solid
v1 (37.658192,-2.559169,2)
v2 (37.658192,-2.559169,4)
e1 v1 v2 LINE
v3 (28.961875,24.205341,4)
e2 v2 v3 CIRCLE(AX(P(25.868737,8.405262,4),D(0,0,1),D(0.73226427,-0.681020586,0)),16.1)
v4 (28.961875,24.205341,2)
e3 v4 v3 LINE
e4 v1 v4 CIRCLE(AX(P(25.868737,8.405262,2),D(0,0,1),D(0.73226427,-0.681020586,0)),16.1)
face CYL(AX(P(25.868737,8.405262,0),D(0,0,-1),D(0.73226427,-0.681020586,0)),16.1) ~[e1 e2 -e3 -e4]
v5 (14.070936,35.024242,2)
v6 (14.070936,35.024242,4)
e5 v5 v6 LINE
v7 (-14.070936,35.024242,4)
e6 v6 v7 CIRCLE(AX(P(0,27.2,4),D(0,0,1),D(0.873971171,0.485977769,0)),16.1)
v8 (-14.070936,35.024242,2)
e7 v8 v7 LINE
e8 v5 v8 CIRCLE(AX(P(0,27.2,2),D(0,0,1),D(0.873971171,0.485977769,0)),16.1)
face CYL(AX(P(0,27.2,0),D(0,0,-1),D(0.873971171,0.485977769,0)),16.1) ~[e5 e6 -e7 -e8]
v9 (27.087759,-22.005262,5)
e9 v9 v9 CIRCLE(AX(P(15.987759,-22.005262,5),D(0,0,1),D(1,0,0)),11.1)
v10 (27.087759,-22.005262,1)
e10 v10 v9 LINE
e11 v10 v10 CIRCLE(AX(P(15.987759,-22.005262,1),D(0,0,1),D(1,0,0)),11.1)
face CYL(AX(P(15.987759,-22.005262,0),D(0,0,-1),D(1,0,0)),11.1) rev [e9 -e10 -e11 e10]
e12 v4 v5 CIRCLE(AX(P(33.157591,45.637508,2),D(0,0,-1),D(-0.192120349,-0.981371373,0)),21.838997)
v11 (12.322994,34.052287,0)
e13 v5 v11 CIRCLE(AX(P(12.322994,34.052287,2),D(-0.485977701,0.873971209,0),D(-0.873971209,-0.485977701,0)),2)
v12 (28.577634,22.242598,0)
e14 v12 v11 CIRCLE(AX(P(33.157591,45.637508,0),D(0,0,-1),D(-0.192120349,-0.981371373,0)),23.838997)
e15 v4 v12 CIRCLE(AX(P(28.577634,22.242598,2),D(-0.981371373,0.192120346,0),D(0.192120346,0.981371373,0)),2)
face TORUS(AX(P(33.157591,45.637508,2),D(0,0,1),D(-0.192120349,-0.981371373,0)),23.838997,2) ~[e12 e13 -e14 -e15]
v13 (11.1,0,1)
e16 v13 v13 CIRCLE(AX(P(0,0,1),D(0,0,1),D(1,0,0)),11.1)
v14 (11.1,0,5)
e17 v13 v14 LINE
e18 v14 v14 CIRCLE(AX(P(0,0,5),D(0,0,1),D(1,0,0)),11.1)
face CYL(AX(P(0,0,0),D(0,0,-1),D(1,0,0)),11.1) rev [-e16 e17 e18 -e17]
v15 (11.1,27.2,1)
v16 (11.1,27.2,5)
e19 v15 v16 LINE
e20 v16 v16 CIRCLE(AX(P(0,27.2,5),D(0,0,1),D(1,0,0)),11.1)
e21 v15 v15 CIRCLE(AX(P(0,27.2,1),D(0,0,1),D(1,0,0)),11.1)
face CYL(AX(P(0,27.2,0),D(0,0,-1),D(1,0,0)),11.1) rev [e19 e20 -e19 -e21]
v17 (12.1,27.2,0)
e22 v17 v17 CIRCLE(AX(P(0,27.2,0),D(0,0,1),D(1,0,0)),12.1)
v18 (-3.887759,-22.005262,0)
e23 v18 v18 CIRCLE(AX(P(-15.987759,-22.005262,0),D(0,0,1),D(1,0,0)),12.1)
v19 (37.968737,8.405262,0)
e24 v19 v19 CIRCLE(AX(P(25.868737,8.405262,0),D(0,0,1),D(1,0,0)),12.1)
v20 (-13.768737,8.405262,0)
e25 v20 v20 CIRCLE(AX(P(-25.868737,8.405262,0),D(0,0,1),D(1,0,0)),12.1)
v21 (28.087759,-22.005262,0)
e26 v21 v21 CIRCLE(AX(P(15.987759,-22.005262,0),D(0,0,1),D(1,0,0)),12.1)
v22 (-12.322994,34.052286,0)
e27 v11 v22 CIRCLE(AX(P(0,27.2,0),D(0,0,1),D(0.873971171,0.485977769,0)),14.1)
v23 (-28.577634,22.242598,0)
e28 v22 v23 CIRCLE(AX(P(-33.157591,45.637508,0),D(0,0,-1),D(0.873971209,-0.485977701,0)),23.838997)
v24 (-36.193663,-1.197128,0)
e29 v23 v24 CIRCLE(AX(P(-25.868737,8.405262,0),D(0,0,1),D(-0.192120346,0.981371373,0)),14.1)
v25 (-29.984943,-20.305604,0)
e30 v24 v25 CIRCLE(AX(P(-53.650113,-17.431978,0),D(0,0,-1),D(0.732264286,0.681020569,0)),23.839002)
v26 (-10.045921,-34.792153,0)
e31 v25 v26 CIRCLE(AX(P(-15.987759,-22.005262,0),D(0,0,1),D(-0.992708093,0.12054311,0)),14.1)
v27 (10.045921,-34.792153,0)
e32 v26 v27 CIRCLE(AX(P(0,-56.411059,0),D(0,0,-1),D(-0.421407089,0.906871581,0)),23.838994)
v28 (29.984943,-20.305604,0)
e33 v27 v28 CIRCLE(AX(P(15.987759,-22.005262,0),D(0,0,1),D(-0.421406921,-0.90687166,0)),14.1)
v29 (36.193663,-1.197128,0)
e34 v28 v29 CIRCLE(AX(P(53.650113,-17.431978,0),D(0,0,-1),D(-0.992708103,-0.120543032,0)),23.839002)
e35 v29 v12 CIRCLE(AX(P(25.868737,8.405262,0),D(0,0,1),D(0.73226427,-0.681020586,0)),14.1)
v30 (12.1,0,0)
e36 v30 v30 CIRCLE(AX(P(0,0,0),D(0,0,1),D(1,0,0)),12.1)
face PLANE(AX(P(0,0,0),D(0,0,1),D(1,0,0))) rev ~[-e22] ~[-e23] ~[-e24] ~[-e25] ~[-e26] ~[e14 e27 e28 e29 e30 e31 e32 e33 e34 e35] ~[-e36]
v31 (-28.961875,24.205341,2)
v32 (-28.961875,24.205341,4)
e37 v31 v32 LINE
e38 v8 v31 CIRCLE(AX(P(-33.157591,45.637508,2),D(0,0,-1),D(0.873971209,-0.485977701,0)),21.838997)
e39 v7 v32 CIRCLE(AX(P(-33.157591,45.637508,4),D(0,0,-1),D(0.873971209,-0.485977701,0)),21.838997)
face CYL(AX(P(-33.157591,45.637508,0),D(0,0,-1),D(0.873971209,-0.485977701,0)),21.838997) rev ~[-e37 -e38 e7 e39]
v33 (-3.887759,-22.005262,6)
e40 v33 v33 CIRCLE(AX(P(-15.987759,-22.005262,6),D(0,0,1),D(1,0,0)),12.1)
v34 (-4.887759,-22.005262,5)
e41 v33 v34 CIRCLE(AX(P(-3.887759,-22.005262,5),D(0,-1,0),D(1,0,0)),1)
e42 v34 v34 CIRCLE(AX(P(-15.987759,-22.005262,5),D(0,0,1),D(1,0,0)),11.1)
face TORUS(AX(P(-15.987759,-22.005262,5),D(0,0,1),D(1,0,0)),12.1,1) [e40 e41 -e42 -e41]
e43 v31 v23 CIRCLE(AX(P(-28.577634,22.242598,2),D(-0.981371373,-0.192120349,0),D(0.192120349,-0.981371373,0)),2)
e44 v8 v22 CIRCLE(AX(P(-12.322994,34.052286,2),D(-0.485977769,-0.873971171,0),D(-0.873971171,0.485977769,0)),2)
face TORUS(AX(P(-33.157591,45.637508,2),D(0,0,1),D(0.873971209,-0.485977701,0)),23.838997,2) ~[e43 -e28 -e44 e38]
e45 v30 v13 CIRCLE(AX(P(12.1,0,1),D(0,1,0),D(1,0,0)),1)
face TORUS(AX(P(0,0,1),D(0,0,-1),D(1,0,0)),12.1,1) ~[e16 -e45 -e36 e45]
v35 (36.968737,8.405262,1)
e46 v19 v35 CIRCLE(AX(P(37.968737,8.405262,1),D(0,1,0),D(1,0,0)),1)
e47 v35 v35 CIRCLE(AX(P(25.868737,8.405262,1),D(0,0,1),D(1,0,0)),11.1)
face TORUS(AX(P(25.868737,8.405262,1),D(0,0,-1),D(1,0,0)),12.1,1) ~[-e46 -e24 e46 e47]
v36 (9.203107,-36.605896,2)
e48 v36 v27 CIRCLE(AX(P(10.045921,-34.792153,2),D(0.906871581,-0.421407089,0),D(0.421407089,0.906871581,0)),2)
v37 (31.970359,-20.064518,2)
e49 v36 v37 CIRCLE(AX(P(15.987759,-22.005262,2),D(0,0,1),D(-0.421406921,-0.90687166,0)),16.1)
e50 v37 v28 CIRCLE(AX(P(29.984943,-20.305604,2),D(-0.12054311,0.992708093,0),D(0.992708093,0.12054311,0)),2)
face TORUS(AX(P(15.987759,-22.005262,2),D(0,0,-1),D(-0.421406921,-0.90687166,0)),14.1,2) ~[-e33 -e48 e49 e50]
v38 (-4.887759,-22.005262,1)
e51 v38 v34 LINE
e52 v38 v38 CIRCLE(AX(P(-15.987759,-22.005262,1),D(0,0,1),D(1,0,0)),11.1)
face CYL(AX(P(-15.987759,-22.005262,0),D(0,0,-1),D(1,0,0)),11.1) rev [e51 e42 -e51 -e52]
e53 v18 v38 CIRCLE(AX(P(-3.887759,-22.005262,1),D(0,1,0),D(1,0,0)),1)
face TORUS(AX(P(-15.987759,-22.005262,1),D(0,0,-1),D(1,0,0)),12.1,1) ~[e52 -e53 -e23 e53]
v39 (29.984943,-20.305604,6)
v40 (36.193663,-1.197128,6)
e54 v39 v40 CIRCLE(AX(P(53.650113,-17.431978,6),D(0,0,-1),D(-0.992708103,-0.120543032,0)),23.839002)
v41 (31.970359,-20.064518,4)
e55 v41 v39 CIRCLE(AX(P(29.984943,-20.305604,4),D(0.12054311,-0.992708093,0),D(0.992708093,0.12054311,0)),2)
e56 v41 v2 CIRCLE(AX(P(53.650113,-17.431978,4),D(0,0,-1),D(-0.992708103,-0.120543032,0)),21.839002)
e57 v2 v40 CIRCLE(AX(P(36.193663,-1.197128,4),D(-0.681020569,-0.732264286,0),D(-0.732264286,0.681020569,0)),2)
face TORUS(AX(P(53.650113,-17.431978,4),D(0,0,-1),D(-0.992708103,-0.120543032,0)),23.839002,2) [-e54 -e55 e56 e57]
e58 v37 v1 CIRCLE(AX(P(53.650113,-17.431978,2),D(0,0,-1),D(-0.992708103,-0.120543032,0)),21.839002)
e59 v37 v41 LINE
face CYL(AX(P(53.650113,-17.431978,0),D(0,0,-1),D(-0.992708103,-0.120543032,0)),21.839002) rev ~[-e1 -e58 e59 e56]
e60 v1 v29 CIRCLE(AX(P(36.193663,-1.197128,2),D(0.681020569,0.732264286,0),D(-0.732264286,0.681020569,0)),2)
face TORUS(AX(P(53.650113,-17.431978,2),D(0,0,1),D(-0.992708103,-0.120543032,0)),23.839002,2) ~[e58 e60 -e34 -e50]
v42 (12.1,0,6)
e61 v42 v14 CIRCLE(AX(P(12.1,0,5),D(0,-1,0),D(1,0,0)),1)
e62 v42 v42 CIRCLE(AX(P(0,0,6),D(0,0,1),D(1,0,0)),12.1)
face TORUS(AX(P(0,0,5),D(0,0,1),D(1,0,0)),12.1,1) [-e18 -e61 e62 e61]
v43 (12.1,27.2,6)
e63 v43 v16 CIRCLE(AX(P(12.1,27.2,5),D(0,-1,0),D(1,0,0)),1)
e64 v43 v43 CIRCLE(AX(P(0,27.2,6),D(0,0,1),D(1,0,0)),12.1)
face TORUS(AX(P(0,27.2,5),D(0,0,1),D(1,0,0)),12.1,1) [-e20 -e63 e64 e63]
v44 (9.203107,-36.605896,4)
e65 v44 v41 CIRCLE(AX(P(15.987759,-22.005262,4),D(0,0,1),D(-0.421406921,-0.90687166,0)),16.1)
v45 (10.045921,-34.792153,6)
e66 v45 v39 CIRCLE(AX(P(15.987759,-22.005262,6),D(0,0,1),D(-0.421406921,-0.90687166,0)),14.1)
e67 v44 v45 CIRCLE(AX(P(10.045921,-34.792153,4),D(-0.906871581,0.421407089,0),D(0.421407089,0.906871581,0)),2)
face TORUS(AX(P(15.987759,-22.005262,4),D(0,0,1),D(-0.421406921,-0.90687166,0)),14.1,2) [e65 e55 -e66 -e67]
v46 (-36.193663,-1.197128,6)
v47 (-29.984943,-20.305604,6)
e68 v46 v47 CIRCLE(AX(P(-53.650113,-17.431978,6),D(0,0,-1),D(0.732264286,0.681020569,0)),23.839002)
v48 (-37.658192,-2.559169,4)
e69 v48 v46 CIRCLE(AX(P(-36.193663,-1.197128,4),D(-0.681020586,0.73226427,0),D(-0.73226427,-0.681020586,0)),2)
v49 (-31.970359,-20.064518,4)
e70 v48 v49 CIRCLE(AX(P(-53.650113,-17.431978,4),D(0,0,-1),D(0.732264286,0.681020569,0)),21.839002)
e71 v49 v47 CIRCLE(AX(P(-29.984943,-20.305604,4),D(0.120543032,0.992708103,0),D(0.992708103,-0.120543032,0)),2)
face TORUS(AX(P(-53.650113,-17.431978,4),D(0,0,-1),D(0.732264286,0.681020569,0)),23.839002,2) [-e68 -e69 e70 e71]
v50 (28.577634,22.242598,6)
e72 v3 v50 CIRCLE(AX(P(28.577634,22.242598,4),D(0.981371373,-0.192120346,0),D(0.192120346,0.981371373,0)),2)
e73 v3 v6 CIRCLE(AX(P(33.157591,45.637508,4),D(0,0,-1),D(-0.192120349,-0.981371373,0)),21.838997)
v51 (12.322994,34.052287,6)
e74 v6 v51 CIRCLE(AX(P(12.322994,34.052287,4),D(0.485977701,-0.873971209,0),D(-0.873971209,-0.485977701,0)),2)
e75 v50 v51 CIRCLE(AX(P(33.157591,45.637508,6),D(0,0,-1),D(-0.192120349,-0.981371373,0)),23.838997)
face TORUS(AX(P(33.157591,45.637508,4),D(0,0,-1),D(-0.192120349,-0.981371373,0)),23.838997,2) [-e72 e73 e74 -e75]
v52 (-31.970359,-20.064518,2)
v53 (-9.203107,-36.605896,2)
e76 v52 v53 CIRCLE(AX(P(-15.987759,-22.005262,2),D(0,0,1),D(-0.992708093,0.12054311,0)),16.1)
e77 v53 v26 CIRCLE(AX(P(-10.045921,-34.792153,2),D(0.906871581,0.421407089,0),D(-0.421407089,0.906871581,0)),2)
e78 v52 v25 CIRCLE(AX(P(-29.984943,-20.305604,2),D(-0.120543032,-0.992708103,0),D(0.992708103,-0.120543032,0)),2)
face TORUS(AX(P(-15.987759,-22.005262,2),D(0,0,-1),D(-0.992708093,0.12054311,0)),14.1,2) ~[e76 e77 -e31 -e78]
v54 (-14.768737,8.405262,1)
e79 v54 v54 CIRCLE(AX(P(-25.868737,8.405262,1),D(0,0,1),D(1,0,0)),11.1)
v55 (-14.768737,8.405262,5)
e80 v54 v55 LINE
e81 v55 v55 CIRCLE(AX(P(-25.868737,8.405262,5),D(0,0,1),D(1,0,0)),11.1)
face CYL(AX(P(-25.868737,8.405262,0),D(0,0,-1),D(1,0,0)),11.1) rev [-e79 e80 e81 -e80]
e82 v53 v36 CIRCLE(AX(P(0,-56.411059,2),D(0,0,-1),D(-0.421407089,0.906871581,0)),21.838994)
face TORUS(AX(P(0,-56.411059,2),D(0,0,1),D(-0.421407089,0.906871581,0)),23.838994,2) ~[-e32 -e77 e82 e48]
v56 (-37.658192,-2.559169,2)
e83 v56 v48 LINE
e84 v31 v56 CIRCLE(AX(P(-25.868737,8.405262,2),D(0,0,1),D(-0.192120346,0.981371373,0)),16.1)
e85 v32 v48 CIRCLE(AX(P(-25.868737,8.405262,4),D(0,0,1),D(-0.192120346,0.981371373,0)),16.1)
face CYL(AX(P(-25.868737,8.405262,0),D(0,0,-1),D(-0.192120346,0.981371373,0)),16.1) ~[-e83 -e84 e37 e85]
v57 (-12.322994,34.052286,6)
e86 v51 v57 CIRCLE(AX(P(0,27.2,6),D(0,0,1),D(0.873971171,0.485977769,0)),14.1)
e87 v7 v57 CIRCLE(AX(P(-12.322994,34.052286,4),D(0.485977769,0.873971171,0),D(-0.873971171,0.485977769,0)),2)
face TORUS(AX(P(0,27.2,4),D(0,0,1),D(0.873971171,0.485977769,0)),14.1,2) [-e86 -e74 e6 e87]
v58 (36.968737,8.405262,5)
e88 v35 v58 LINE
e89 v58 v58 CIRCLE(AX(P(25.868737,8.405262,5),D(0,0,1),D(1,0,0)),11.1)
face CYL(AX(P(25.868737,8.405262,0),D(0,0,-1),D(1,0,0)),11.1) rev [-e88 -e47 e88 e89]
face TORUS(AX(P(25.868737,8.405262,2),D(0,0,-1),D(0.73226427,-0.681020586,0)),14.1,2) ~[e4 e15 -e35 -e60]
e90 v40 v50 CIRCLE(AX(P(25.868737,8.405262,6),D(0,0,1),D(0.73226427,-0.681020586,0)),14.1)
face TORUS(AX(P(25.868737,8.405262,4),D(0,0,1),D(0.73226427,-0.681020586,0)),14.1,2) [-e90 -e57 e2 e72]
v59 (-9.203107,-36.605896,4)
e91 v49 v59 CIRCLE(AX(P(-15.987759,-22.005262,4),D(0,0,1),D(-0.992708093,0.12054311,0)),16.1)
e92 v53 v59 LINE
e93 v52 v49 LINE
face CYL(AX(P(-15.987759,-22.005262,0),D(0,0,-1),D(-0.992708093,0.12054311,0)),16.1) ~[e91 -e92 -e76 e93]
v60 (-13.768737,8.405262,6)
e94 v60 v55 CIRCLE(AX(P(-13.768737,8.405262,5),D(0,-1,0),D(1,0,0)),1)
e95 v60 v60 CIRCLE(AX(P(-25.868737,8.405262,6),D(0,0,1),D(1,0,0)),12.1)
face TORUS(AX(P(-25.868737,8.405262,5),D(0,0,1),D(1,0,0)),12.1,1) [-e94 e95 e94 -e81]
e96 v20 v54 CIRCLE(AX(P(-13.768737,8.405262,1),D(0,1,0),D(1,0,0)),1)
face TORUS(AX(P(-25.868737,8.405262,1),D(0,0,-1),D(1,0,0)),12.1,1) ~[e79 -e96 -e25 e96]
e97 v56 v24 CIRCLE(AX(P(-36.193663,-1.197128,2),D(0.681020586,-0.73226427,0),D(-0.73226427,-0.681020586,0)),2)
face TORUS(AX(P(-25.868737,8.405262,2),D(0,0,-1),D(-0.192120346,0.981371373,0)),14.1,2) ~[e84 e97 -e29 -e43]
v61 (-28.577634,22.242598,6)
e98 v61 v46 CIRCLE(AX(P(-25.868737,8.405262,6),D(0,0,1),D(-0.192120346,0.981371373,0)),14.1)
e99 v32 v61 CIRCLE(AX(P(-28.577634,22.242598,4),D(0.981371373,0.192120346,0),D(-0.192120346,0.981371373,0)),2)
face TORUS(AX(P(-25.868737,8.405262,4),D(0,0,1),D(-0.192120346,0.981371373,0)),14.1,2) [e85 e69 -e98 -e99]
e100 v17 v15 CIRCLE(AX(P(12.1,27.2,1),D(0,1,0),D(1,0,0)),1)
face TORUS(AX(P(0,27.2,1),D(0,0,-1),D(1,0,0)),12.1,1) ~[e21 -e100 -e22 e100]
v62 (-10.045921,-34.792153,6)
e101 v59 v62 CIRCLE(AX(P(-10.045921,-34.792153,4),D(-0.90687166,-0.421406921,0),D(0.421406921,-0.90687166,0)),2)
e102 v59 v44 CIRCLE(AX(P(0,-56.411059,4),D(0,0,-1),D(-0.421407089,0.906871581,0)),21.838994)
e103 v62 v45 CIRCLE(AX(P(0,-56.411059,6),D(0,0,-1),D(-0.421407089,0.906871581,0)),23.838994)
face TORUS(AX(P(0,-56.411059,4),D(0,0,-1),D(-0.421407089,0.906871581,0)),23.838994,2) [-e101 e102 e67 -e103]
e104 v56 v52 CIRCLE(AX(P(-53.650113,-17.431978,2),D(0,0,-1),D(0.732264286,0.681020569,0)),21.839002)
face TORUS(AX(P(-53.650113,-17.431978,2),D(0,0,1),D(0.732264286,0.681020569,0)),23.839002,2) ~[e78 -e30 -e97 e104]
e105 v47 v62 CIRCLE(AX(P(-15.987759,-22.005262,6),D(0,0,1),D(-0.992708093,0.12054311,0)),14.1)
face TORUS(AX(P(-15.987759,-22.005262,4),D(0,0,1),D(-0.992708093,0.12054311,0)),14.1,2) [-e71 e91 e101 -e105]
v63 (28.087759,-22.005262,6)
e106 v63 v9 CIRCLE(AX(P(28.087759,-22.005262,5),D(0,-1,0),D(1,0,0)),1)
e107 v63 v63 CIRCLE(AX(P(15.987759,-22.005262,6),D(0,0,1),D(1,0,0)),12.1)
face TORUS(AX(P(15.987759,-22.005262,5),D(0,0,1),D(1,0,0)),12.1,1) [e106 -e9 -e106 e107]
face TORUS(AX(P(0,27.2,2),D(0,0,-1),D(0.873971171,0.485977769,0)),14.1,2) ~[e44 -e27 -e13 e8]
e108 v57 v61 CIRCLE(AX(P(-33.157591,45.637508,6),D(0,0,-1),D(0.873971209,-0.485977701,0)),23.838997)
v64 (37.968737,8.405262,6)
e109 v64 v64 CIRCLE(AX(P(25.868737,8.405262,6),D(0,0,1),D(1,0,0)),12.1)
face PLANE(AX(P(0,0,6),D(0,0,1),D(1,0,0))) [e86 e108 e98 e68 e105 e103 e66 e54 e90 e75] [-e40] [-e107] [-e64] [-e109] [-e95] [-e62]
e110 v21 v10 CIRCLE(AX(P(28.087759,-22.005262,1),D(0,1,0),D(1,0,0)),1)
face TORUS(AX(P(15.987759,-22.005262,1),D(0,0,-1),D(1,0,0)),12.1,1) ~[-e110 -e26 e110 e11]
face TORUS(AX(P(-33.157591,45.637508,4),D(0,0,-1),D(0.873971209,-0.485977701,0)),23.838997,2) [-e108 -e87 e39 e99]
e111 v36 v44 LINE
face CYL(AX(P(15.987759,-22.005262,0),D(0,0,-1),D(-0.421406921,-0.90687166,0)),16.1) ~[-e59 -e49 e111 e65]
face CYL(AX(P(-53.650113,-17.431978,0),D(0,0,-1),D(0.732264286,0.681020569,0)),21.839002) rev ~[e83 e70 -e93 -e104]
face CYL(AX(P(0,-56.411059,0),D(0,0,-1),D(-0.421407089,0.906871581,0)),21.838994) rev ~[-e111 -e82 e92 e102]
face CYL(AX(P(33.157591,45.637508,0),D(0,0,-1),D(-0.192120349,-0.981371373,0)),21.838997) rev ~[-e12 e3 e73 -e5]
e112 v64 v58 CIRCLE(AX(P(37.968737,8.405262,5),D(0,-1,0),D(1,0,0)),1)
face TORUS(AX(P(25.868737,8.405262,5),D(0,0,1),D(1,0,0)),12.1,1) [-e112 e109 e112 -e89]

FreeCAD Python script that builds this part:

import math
import FreeCAD as App
import Part
import Sketcher

V = App.Vector


def edges_at(feature, points):
    """Names of the edges that pass closest to the given points."""
    edges = feature.Shape.Edges
    near = lambda p: min(range(len(edges)), key=lambda i: edges[i].distToShape(Part.Vertex(*p))[0])
    return sorted({f"Edge{near(p) + 1}" for p in points})

doc = App.newDocument("Part")
params = doc.addObject("Spreadsheet::Sheet", "Params")
for row, (alias, value) in enumerate([
    ("sketch1_diameter", "22.2 mm"),
    ("sketch1_radius", "16.1 mm"),
    ("pad1_length", "6 mm"),
    ("fillet_radius", "2 mm"),
    ("fillet2_radius", "1 mm"),
], start=1):
    params.set(f"A{row}", alias)
    params.set(f"B{row}", "=" + value)
    params.setAlias(f"B{row}", alias)

body = doc.addObject("PartDesign::Body", "Body")

# Sketch on XY plane
sketch1 = body.newObject("Sketcher::SketchObject", "Sketch")
sketch1.AttachmentSupport = (doc.getObject("XY_Plane"), [""])
sketch1.MapMode = "FlatFace"
sketch1.addGeometry([
    Part.ArcOfCircle(Part.Circle(V(33, 46, 0), V(0, 0, 1), 22), math.radians(-151), math.radians(-101)),  # 0
    Part.ArcOfCircle(Part.Circle(V(0, 27, 0), V(0, 0, 1), 16), math.radians(29), math.radians(151)),  # 1
    Part.ArcOfCircle(Part.Circle(V(-33, 46, 0), V(0, 0, 1), 22), math.radians(-79), math.radians(-29)),  # 2
    Part.ArcOfCircle(Part.Circle(V(-26, 8, 0), V(0, 0, 1), 16), math.radians(101), math.radians(223)),  # 3
    Part.ArcOfCircle(Part.Circle(V(-54, -17, 0), V(0, 0, 1), 22), math.radians(-7), math.radians(43)),  # 4
    Part.ArcOfCircle(Part.Circle(V(-16, -22, 0), V(0, 0, 1), 16), math.radians(173), math.radians(295)),  # 5
    Part.ArcOfCircle(Part.Circle(V(0, -56, 0), V(0, 0, 1), 22), math.radians(65), math.radians(115)),  # 6
    Part.ArcOfCircle(Part.Circle(V(16, -22, 0), V(0, 0, 1), 16), math.radians(-115), math.radians(7)),  # 7
    Part.ArcOfCircle(Part.Circle(V(54, -17, 0), V(0, 0, 1), 22), math.radians(137), math.radians(187)),  # 8
    Part.ArcOfCircle(Part.Circle(V(26, 8, 0), V(0, 0, 1), 16), math.radians(-43), math.radians(79)),  # 9
    Part.Circle(V(-16, -22, 0), V(0, 0, 1), 11),  # 10
    Part.Circle(V(0, 0, 0), V(0, 0, 1), 11),  # 11
    Part.Circle(V(16, -22, 0), V(0, 0, 1), 11),  # 12
    Part.Circle(V(-26, 8, 0), V(0, 0, 1), 11),  # 13
    Part.Circle(V(0, 27, 0), V(0, 0, 1), 11),  # 14
    Part.Circle(V(26, 8, 0), V(0, 0, 1), 11),  # 15
], False)
sketch1.addConstraint([
    Sketcher.Constraint("Tangent", 0, 1, 1, 1),
    Sketcher.Constraint("Tangent", 1, 2, 2, 2),
    Sketcher.Constraint("Tangent", 2, 1, 3, 1),
    Sketcher.Constraint("Tangent", 3, 2, 4, 2),
    Sketcher.Constraint("Tangent", 4, 1, 5, 1),
    Sketcher.Constraint("Tangent", 5, 2, 6, 2),
    Sketcher.Constraint("Tangent", 6, 1, 7, 1),
    Sketcher.Constraint("Tangent", 7, 2, 8, 2),
    Sketcher.Constraint("Tangent", 8, 1, 9, 1),
    Sketcher.Constraint("Tangent", 9, 2, 0, 2),
    Sketcher.Constraint("Coincident", 11, 3, -1, 1),
    Sketcher.Constraint("Coincident", 10, 3, 5, 3),
    Sketcher.Constraint("Coincident", 12, 3, 7, 3),
    Sketcher.Constraint("Coincident", 13, 3, 3, 3),
    Sketcher.Constraint("Coincident", 14, 3, 1, 3),
    Sketcher.Constraint("Coincident", 15, 3, 9, 3),
    Sketcher.Constraint("Equal", 0, 2),
    Sketcher.Constraint("Equal", 1, 3),
    Sketcher.Constraint("Equal", 3, 5),
    Sketcher.Constraint("Equal", 5, 7),
    Sketcher.Constraint("Equal", 4, 8),
    Sketcher.Constraint("Equal", 7, 9),
    Sketcher.Constraint("Equal", 10, 11),
    Sketcher.Constraint("Equal", 11, 12),
    Sketcher.Constraint("Equal", 12, 13),
    Sketcher.Constraint("Equal", 13, 14),
    Sketcher.Constraint("Equal", 14, 15),
    Sketcher.Constraint("Symmetric", 0, 3, 2, 3, -2),
    Sketcher.Constraint("Symmetric", 5, 3, 7, 3, -2),
    Sketcher.Constraint("Horizontal", 4, 3, 8, 3),
    Sketcher.Constraint("Diameter", 10, 22.2),
    Sketcher.Constraint("Radius", 1, 16.1),
    Sketcher.Constraint("Radius", 4, 21.839002),
    Sketcher.Constraint("DistanceY", -1, 1, 1, 3, 27.2),
    Sketcher.Constraint("Radius", 0, 21.838997),
    Sketcher.Constraint("Radius", 6, 21.838994),
    Sketcher.Constraint("DistanceX", 0, 1, 15, 3, 11.797801),
    Sketcher.Constraint("DistanceY", 2, 1, 1, 2, 10.818901),
    Sketcher.Constraint("DistanceX", 4, 1, 10, 3, 15.9826),
    Sketcher.Constraint("DistanceY", 4, 3, -1, 1, 17.431978),
])
sketch1.setExpression("Constraints[30]", "Params.sketch1_diameter")
sketch1.setExpression("Constraints[31]", "Params.sketch1_radius")
pad1 = body.newObject("PartDesign::Pad", "Pad")
pad1.Profile = sketch1
pad1.setExpression("Length", "Params.pad1_length")
doc.recompute()

fillet = body.newObject("PartDesign::Fillet", "Fillet")
fillet.Base = (pad1, edges_at(pad1, [(-41.181, 13.38, 6), (0, -34.572, 0)]))
fillet.setExpression("Radius", "Params.fillet_radius")
doc.recompute()

fillet2 = body.newObject("PartDesign::Fillet", "Fillet001")
fillet2.Base = (fillet, edges_at(fillet, [
    (-36.969, 8.405, 6),
    (-11.1, 27.2, 6),
    (-11.1, 0, 6),
    (14.769, 8.405, 6),
    (4.888, -22.005, 6),
    (-27.088, -22.005, 6),
    (4.888, -22.005, 0),
    (-11.1, 0, 0),
    (14.769, 8.405, 0),
    (-11.1, 27.2, 0),
    (-36.969, 8.405, 0),
    (-27.088, -22.005, 0),
]))
fillet2.setExpression("Radius", "Params.fillet2_radius")

doc.recompute()
